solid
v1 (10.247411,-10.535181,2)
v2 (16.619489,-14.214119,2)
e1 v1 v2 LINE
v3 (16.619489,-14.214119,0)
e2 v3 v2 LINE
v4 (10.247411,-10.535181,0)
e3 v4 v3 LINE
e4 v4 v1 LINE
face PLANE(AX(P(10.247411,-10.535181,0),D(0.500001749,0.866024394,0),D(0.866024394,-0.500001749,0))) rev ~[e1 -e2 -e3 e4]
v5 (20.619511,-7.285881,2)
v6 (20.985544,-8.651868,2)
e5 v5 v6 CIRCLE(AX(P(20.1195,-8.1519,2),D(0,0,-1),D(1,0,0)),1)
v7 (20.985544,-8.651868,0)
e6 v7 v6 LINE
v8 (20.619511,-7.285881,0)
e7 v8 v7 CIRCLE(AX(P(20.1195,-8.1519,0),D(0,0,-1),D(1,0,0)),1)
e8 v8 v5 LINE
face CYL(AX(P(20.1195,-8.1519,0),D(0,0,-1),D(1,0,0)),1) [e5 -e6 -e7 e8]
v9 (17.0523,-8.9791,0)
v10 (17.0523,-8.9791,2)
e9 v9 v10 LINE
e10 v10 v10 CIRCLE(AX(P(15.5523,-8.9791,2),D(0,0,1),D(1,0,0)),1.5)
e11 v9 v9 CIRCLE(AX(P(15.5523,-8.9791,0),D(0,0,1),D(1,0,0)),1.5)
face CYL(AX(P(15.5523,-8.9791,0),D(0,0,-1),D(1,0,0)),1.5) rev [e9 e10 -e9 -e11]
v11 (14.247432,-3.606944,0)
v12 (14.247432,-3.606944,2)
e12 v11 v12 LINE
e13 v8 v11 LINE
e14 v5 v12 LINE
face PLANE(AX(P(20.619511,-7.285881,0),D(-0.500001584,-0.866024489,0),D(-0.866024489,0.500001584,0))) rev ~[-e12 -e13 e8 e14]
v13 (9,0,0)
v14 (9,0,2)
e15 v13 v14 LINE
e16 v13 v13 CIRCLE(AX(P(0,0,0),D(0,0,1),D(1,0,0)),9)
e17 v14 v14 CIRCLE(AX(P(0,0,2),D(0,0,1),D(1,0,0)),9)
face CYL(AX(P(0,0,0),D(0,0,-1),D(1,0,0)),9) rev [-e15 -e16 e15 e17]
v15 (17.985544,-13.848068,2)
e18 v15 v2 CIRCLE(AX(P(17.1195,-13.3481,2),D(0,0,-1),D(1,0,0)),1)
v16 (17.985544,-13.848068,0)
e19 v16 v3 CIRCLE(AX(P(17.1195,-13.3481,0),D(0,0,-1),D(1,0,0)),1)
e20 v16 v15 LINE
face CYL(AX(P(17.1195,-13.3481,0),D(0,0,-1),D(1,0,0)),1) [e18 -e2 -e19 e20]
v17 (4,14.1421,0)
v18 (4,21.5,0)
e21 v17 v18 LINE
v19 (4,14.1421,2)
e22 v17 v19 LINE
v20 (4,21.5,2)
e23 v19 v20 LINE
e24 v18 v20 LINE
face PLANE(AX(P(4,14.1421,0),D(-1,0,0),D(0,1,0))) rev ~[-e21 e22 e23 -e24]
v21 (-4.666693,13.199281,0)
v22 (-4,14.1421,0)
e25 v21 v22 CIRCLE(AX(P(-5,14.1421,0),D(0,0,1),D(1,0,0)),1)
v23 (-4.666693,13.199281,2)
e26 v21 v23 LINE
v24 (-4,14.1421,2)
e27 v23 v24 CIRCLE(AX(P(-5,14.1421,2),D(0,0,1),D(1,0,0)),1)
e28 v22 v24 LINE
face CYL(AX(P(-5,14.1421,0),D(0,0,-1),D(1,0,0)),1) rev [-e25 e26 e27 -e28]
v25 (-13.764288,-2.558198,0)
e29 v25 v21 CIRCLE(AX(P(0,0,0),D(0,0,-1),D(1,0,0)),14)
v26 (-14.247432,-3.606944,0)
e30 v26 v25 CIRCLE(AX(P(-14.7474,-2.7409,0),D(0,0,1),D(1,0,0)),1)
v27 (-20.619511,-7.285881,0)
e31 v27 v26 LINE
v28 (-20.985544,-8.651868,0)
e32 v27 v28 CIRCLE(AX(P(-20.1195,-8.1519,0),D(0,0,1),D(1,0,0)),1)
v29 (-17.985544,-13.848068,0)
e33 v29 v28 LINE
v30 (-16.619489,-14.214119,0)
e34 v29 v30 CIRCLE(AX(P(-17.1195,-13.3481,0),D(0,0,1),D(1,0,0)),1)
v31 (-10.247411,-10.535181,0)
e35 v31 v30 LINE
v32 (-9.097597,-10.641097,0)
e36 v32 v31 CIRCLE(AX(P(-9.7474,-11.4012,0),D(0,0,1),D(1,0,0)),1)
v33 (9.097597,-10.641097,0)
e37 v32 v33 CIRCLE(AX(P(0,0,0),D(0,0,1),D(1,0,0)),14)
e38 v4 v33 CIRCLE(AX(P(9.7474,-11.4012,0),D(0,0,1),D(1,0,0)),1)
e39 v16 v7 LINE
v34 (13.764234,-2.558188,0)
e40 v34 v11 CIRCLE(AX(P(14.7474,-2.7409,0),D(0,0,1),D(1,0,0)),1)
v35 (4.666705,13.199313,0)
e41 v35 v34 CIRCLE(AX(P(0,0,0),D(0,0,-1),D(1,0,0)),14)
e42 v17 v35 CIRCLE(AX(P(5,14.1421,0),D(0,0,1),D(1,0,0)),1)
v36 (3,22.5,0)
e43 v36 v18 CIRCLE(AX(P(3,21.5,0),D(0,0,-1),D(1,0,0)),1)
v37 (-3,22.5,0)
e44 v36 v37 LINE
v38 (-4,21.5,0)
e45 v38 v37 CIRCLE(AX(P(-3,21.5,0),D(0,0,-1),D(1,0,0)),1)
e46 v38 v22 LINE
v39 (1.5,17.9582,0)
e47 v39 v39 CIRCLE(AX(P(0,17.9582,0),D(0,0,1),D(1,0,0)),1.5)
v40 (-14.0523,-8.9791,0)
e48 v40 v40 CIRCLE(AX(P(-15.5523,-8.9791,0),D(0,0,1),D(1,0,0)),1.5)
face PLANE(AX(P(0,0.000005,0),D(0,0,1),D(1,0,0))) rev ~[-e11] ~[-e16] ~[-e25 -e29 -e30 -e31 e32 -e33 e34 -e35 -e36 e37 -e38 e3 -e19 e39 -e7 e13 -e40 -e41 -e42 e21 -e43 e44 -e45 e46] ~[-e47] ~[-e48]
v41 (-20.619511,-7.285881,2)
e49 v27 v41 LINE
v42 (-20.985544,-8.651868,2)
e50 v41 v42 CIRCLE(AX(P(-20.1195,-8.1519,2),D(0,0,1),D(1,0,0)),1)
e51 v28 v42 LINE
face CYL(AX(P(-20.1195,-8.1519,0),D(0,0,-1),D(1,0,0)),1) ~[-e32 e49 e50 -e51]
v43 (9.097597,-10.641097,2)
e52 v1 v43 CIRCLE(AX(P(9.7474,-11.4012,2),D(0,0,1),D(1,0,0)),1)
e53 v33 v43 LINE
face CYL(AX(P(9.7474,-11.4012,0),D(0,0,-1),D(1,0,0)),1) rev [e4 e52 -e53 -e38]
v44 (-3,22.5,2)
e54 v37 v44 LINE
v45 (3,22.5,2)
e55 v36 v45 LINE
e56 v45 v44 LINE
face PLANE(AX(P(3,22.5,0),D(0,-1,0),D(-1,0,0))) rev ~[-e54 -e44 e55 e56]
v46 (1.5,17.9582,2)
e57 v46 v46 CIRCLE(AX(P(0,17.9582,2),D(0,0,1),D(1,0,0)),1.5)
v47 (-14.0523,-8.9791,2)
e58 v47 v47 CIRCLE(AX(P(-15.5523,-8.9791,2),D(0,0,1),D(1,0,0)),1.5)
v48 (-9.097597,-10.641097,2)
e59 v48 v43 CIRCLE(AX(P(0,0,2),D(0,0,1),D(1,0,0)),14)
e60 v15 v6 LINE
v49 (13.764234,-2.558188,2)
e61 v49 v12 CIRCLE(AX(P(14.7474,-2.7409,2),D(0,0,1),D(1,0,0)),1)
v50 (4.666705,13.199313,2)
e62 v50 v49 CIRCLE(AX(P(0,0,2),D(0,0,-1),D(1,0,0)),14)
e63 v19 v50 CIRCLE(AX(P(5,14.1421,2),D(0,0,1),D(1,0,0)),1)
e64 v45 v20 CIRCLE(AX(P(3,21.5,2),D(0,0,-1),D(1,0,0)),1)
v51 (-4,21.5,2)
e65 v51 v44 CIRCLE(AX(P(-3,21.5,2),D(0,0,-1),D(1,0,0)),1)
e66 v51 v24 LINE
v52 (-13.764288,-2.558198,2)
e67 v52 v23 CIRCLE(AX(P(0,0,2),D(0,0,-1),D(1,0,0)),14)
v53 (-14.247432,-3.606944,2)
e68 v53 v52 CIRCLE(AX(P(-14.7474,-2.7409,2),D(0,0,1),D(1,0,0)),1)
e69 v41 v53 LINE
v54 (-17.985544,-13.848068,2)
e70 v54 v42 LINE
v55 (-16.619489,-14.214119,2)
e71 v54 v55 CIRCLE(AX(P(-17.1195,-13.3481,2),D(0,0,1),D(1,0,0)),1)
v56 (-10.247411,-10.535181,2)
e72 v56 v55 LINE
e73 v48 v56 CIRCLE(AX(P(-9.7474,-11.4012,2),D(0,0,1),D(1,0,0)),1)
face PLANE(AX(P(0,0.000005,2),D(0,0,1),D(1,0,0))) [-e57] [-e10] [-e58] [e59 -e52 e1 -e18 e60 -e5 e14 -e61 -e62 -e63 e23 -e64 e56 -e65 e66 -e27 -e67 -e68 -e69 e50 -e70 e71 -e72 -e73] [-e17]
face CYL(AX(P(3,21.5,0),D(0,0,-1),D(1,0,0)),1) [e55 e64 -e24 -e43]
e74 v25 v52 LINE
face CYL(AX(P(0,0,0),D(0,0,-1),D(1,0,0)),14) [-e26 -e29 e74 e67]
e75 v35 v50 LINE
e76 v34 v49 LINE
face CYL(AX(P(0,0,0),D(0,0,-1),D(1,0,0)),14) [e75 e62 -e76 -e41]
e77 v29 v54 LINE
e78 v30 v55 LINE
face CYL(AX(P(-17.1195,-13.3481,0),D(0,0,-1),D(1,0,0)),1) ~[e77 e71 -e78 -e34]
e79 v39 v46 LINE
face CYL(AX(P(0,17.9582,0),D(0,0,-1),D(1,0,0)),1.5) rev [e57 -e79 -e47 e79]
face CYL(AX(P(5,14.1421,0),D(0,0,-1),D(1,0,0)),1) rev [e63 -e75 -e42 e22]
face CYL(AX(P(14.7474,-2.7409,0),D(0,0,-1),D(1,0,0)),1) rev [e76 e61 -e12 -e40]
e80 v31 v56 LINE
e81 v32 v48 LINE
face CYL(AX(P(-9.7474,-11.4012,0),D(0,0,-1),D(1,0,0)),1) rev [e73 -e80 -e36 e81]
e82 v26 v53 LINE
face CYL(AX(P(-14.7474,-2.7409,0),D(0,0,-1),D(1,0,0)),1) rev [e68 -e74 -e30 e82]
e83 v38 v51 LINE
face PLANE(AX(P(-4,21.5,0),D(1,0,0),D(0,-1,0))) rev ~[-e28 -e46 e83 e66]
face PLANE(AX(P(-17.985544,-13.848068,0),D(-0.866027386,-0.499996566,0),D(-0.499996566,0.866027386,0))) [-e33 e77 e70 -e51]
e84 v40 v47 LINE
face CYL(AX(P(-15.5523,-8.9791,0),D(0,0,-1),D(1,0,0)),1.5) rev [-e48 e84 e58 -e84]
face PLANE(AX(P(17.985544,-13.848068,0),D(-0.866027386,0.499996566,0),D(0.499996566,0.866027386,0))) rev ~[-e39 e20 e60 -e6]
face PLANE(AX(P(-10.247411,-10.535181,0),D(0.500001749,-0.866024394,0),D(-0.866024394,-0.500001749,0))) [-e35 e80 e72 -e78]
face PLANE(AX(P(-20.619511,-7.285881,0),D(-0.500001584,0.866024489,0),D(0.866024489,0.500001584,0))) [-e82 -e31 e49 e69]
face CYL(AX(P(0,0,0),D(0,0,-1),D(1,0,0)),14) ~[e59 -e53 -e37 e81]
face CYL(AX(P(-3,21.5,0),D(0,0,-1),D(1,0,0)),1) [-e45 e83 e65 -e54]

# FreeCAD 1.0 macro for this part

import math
import FreeCAD as App
import Part
import Sketcher
Q = App.Units.Quantity

doc = App.newDocument("Part")
body = doc.addObject("PartDesign::Body", "Body")

# Sketch on XY plane
sketch1 = body.newObject("Sketcher::SketchObject", "Sketch")
sketch1.AttachmentSupport = (doc.getObject("XY_Plane"), [""])
sketch1.MapMode = "FlatFace"
sketch1.addGeometry([
    Part.ArcOfCircle(Part.Circle(App.Vector(3, 21.5, 0), App.Vector(0, 0, 1), 1), math.radians(0), math.radians(90)),  # 0
    Part.LineSegment(App.Vector(3, 22.5, 0), App.Vector(-3, 22.5, 0)),  # 1
    Part.ArcOfCircle(Part.Circle(App.Vector(-3, 21.5, 0), App.Vector(0, 0, 1), 1), math.radians(90), math.radians(180)),  # 2
    Part.LineSegment(App.Vector(-4, 21.5, 0), App.Vector(-4, 14.1, 0)),  # 3
    Part.ArcOfCircle(Part.Circle(App.Vector(-5, 14.1, 0), App.Vector(0, 0, 1), 1), math.radians(-71), math.radians(0)),  # 4
    Part.ArcOfCircle(Part.Circle(App.Vector(0, 0, 0), App.Vector(0, 0, 1), 14), math.radians(109), math.radians(191)),  # 5
    Part.ArcOfCircle(Part.Circle(App.Vector(-14.7, -2.7, 0), App.Vector(0, 0, 1), 1), math.radians(-60), math.radians(11)),  # 6
    Part.LineSegment(App.Vector(-14.2, -3.6, 0), App.Vector(-20.6, -7.3, 0)),  # 7
    Part.ArcOfCircle(Part.Circle(App.Vector(-20.1, -8.2, 0), App.Vector(0, 0, 1), 1), math.radians(120), math.radians(210)),  # 8
    Part.LineSegment(App.Vector(-21, -8.7, 0), App.Vector(-18, -13.8, 0)),  # 9
    Part.ArcOfCircle(Part.Circle(App.Vector(-17.1, -13.3, 0), App.Vector(0, 0, 1), 1), math.radians(-150), math.radians(-60)),  # 10
    Part.LineSegment(App.Vector(-16.6, -14.2, 0), App.Vector(-10.2, -10.5, 0)),  # 11
    Part.ArcOfCircle(Part.Circle(App.Vector(-9.7, -11.4, 0), App.Vector(0, 0, 1), 1), math.radians(49), math.radians(120)),  # 12
    Part.ArcOfCircle(Part.Circle(App.Vector(0, 0, 0), App.Vector(0, 0, 1), 14), math.radians(-131), math.radians(-49)),  # 13
    Part.ArcOfCircle(Part.Circle(App.Vector(9.7, -11.4, 0), App.Vector(0, 0, 1), 1), math.radians(60), math.radians(131)),  # 14
    Part.LineSegment(App.Vector(10.2, -10.5, 0), App.Vector(16.6, -14.2, 0)),  # 15
    Part.ArcOfCircle(Part.Circle(App.Vector(17.1, -13.3, 0), App.Vector(0, 0, 1), 1), math.radians(-120), math.radians(-30)),  # 16
    Part.LineSegment(App.Vector(18, -13.8, 0), App.Vector(21, -8.7, 0)),  # 17
    Part.ArcOfCircle(Part.Circle(App.Vector(20.1, -8.2, 0), App.Vector(0, 0, 1), 1), math.radians(-30), math.radians(60)),  # 18
    Part.LineSegment(App.Vector(20.6, -7.3, 0), App.Vector(14.2, -3.6, 0)),  # 19
    Part.ArcOfCircle(Part.Circle(App.Vector(14.7, -2.7, 0), App.Vector(0, 0, 1), 1), math.radians(169), math.radians(240)),  # 20
    Part.ArcOfCircle(Part.Circle(App.Vector(0, 0, 0), App.Vector(0, 0, 1), 14), math.radians(-11), math.radians(71)),  # 21
    Part.ArcOfCircle(Part.Circle(App.Vector(5, 14.1, 0), App.Vector(0, 0, 1), 1), math.radians(180), math.radians(251)),  # 22
    Part.LineSegment(App.Vector(4, 14.1, 0), App.Vector(4, 21.5, 0)),  # 23
    Part.Circle(App.Vector(-15.6, -9, 0), App.Vector(0, 0, 1), 1.5),  # 24
    Part.Circle(App.Vector(15.6, -9, 0), App.Vector(0, 0, 1), 1.5),  # 25
    Part.Circle(App.Vector(0, 0, 0), App.Vector(0, 0, 1), 9),  # 26
    Part.Circle(App.Vector(0, 18, 0), App.Vector(0, 0, 1), 1.5),  # 27
], False)
sketch1.addConstraint([
    Sketcher.Constraint("Tangent", 0, 2, 1, 1),
    Sketcher.Constraint("Tangent", 1, 2, 2, 1),
    Sketcher.Constraint("Tangent", 2, 2, 3, 1),
    Sketcher.Constraint("Tangent", 3, 2, 4, 2),
    Sketcher.Constraint("Tangent", 4, 1, 5, 1),
    Sketcher.Constraint("Tangent", 5, 2, 6, 2),
    Sketcher.Constraint("Tangent", 6, 1, 7, 1),
    Sketcher.Constraint("Tangent", 7, 2, 8, 1),
    Sketcher.Constraint("Tangent", 8, 2, 9, 1),
    Sketcher.Constraint("Tangent", 9, 2, 10, 1),
    Sketcher.Constraint("Tangent", 10, 2, 11, 1),
    Sketcher.Constraint("Tangent", 11, 2, 12, 2),
    Sketcher.Constraint("Tangent", 12, 1, 13, 1),
    Sketcher.Constraint("Tangent", 13, 2, 14, 2),
    Sketcher.Constraint("Tangent", 14, 1, 15, 1),
    Sketcher.Constraint("Tangent", 15, 2, 16, 1),
    Sketcher.Constraint("Tangent", 16, 2, 17, 1),
    Sketcher.Constraint("Tangent", 17, 2, 18, 1),
    Sketcher.Constraint("Tangent", 18, 2, 19, 1),
    Sketcher.Constraint("Tangent", 19, 2, 20, 2),
    Sketcher.Constraint("Tangent", 20, 1, 21, 1),
    Sketcher.Constraint("Tangent", 21, 2, 22, 2),
    Sketcher.Constraint("Tangent", 22, 1, 23, 1),
    Sketcher.Constraint("Tangent", 23, 2, 0, 1),
    Sketcher.Constraint("Horizontal", 1),
    Sketcher.Constraint("Vertical", 3),
    Sketcher.Constraint("Vertical", 23),
    Sketcher.Constraint("Coincident", 5, 3, -1, 1),
    Sketcher.Constraint("Coincident", 13, 3, -1, 1),
    Sketcher.Constraint("Coincident", 21, 3, -1, 1),
    Sketcher.Constraint("Coincident", 26, 3, -1, 1),
    Sketcher.Constraint("Equal", 0, 2),
    Sketcher.Constraint("Equal", 2, 4),
    Sketcher.Constraint("Equal", 4, 6),
    Sketcher.Constraint("Equal", 6, 8),
    Sketcher.Constraint("Equal", 8, 10),
    Sketcher.Constraint("Equal", 10, 12),
    Sketcher.Constraint("Equal", 5, 13),
    Sketcher.Constraint("Equal", 12, 14),
    Sketcher.Constraint("Equal", 14, 16),
    Sketcher.Constraint("Equal", 16, 18),
    Sketcher.Constraint("Equal", 18, 20),
    Sketcher.Constraint("Equal", 13, 21),
    Sketcher.Constraint("Equal", 20, 22),
    Sketcher.Constraint("Equal", 24, 25),
    Sketcher.Constraint("Equal", 25, 27),
    Sketcher.Constraint("Symmetric", 10, 3, 16, 3, -2),
    Sketcher.Constraint("Symmetric", 8, 3, 18, 3, -2),
    Sketcher.Constraint("Symmetric", 24, 3, 25, 3, -2),
    Sketcher.Constraint("PointOnObject", 27, 3, -2),
    Sketcher.Constraint("Perpendicular", 7, 9),
    Sketcher.Constraint("Perpendicular", 9, 11),
    Sketcher.Constraint("Perpendicular", 15, 17),
    Sketcher.Constraint("Perpendicular", 17, 19),
    Sketcher.Constraint("Horizontal", 4, 3, 22, 3),
    Sketcher.Constraint("Equal", 7, 11),
    Sketcher.Constraint("Diameter", 24, Q("3 mm")),
    Sketcher.Constraint("Diameter", 26, Q("18 mm")),
    Sketcher.Constraint("Radius", 0, Q("1 mm")),
    Sketcher.Constraint("Radius", 5, Q("14 mm")),
    Sketcher.Constraint("DistanceX", 1, 2, 1, 1, Q("6 mm")),
    Sketcher.Constraint("Angle", 7, Q("-150.0002 deg")),
    Sketcher.Constraint("Distance", 9, Q("6 mm")),
    Sketcher.Constraint("DistanceY", -1, 1, 0, 3, Q("21.5 mm")),
    Sketcher.Constraint("DistanceY", 10, 3, 5, 2, Q("10.79 mm")),
    Sketcher.Constraint("DistanceY", 24, 3, -1, 1, Q("8.979 mm")),
    Sketcher.Constraint("DistanceX", 24, 3, 6, 3, Q("0.805 mm")),
    Sketcher.Constraint("DistanceY", 4, 3, 27, 3, Q("3.816 mm")),
])
pad1 = body.newObject("PartDesign::Pad", "Pad")
pad1.Profile = sketch1
pad1.Length = 2

doc.recompute()
